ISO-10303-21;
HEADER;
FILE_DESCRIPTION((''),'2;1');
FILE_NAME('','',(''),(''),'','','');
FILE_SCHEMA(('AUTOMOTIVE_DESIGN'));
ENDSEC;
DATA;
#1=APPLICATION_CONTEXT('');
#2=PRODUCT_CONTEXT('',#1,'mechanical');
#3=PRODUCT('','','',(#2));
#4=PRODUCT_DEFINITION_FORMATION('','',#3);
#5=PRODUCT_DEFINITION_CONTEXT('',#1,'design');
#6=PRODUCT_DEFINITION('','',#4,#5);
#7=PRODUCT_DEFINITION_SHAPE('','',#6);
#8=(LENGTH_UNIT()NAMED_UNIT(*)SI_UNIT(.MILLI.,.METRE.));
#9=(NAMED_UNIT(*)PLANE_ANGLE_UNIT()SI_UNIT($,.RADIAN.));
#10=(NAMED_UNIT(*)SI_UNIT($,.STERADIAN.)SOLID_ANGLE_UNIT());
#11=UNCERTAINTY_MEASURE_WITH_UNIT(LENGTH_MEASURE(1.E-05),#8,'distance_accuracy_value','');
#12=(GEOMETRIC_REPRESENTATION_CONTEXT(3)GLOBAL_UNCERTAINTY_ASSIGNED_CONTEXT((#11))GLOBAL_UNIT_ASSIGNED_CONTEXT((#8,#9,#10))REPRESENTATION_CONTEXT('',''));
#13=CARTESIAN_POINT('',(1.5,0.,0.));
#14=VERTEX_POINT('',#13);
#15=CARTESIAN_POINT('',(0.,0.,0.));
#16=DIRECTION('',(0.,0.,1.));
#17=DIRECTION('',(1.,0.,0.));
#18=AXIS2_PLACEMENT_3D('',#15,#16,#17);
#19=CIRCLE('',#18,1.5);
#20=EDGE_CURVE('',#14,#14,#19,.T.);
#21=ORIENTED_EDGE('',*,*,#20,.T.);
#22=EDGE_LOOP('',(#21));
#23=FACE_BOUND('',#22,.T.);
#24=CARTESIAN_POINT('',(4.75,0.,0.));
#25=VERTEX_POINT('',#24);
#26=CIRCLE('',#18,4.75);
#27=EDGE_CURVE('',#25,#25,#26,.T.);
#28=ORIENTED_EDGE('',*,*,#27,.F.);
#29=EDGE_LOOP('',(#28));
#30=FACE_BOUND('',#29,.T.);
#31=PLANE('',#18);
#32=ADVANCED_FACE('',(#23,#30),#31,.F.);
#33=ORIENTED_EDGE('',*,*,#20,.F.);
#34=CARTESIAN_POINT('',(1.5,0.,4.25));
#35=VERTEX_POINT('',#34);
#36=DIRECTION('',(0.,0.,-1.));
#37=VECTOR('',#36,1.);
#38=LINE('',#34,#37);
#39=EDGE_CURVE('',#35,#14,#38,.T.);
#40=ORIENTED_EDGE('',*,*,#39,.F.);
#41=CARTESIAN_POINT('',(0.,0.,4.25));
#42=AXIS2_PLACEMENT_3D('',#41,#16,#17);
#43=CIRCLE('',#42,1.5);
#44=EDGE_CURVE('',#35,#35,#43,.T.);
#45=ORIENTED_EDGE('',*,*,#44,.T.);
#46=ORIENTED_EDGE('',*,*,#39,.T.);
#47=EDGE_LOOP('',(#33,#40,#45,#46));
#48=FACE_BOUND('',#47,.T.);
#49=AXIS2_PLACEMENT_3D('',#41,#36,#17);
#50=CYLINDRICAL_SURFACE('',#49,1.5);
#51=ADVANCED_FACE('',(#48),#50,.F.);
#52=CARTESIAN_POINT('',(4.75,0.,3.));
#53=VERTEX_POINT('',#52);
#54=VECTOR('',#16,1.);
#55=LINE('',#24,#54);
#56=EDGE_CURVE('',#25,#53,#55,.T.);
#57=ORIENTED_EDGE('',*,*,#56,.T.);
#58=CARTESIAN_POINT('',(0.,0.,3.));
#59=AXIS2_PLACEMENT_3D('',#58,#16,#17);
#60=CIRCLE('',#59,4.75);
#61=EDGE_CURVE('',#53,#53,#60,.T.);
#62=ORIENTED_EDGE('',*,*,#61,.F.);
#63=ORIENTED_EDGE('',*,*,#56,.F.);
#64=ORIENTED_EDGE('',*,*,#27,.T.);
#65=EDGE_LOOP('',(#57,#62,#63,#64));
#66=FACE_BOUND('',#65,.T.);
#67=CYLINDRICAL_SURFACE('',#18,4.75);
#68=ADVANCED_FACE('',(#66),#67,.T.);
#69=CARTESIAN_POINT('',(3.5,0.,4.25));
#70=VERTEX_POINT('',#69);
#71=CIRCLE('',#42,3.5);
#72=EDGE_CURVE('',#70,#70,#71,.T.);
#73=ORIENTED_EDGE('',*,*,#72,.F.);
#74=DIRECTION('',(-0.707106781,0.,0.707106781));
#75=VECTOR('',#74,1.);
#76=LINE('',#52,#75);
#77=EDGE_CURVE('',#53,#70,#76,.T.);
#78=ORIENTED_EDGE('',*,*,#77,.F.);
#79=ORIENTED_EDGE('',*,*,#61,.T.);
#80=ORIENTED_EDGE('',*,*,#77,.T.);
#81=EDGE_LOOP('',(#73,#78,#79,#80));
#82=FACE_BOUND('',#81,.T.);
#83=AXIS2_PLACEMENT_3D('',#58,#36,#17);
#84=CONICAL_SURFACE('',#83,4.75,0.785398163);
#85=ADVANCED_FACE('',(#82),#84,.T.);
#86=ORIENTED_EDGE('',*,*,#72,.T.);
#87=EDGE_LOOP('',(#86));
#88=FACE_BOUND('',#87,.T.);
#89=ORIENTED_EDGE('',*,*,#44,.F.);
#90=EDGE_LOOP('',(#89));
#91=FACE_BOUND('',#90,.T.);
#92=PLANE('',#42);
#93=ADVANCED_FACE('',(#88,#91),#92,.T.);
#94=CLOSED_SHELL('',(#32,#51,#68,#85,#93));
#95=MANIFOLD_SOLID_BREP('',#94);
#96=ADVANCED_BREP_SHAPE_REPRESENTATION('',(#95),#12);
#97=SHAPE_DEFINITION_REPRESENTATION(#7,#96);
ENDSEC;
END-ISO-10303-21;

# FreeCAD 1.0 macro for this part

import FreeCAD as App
import Part
import Sketcher

V = App.Vector
Q = App.Units.Quantity

doc = App.newDocument("Part")
body = doc.addObject("PartDesign::Body", "Body")

sketch1 = body.newObject("Sketcher::SketchObject", "Sketch")
sketch1.AttachmentSupport = (doc.getObject("XZ_Plane"), [""])
sketch1.MapMode = "FlatFace"
sketch1.addGeometry([
    Part.LineSegment(V(1.5, 0, 0), V(4.8, 0, 0)),
    Part.LineSegment(V(4.8, 0, 0), V(4.8, 3, 0)),
    Part.LineSegment(V(4.8, 3, 0), V(3.5, 4.2, 0)),
    Part.LineSegment(V(3.5, 4.2, 0), V(1.5, 4.2, 0)),
    Part.LineSegment(V(1.5, 4.2, 0), V(1.5, 0, 0)),
], False)
sketch1.addConstraint([
    Sketcher.Constraint("Coincident", 0, 2, 1, 1),
    Sketcher.Constraint("Coincident", 1, 2, 2, 1),
    Sketcher.Constraint("Coincident", 2, 2, 3, 1),
    Sketcher.Constraint("Coincident", 3, 2, 4, 1),
    Sketcher.Constraint("Coincident", 4, 2, 0, 1),
    Sketcher.Constraint("Horizontal", 0),
    Sketcher.Constraint("Vertical", 1),
    Sketcher.Constraint("Horizontal", 3),
    Sketcher.Constraint("Vertical", 4),
    Sketcher.Constraint("PointOnObject", 0, 2, -1),
    Sketcher.Constraint("DistanceX", 3, 2, 3, 1, 2.0),
    Sketcher.Constraint("DistanceY", 1, 1, 1, 2, 3.0),
    Sketcher.Constraint("Angle", 2, Q("135 deg")),
    Sketcher.Constraint("DistanceX", 0, 1, 0, 2, 3.25),
    Sketcher.Constraint("DistanceX", -1, 1, 2, 2, 3.5),
])
revolution = body.newObject("PartDesign::Revolution", "Revolution")
revolution.Profile = sketch1
revolution.ReferenceAxis = (sketch1, ["V_Axis"])
revolution.Angle = 360

doc.recompute()
